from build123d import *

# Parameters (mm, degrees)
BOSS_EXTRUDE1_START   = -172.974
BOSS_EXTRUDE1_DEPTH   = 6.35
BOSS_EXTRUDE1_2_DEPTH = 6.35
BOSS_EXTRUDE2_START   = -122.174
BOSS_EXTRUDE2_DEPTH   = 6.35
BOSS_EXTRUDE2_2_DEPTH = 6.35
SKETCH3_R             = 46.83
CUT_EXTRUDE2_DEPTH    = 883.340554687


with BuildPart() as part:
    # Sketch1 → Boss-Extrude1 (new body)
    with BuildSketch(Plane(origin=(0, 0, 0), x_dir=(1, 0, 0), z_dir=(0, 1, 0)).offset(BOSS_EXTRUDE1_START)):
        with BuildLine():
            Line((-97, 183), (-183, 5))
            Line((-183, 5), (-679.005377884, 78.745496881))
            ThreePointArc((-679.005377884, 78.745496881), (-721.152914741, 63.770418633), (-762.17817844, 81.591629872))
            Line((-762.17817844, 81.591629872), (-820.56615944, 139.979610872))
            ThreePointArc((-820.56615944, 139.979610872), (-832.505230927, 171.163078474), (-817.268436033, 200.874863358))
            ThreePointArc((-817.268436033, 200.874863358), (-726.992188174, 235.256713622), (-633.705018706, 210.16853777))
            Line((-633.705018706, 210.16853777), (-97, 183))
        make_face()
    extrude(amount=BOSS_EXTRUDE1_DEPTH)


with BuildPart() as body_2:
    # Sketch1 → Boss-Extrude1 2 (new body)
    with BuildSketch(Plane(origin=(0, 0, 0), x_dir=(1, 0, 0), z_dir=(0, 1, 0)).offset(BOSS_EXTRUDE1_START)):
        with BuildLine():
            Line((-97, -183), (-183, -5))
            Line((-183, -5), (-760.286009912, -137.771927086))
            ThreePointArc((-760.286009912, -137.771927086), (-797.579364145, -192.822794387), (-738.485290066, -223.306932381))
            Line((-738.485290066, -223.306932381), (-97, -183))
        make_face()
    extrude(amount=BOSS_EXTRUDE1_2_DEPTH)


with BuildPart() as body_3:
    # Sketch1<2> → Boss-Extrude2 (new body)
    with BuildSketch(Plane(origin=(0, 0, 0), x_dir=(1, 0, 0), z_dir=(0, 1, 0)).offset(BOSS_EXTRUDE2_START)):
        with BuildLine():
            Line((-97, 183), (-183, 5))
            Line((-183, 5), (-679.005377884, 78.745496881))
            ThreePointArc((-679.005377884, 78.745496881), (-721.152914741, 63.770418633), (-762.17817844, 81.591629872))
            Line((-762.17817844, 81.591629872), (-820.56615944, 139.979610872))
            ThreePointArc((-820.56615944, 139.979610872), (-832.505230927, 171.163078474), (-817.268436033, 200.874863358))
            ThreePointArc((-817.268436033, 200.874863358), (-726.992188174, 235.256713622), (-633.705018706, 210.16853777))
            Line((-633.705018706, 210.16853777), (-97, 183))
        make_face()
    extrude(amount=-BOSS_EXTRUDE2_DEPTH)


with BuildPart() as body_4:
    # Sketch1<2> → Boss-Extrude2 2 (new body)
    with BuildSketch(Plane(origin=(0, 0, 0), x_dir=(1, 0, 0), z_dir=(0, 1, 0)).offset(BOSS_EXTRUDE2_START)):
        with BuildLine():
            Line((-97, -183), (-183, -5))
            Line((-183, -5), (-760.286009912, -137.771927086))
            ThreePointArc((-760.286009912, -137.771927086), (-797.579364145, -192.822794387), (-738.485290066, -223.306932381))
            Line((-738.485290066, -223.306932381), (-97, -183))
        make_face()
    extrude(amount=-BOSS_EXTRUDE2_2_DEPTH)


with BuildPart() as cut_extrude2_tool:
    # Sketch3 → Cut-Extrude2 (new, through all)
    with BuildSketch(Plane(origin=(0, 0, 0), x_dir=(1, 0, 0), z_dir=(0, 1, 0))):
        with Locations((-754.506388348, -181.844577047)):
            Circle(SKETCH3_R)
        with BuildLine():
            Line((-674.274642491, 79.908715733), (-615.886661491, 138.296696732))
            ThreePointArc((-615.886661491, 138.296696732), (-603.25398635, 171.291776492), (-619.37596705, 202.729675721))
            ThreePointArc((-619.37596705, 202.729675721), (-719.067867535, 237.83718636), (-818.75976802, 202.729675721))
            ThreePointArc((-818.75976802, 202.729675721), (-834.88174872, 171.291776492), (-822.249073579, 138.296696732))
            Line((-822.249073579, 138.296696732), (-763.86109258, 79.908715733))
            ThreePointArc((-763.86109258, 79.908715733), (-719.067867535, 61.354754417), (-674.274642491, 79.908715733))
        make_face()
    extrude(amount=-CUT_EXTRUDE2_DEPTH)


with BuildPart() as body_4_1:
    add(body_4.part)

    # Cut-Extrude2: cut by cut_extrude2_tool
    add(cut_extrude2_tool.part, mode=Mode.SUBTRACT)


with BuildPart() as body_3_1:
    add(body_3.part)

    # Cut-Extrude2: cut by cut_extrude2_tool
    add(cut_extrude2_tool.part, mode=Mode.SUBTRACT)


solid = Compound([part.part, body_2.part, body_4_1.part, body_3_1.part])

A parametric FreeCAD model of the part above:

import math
import FreeCAD as App
import Part
import Sketcher
Q = App.Units.Quantity

doc = App.newDocument("Part")
body = doc.addObject("PartDesign::Body", "Body")

sketch1 = body.newObject("Sketcher::SketchObject", "Sketch")
sketch1.AttachmentSupport = (doc.getObject("XZ_Plane"), [""])
sketch1.MapMode = "FlatFace"
sketch1.AttachmentOffset = App.Placement(App.Vector(0, 0, 6.81 * 25.4), App.Rotation())
sketch1.addGeometry([
    Part.LineSegment(App.Vector(-183, -5, 0), App.Vector(-97, -183, 0)),
    Part.LineSegment(App.Vector(-97, -183, 0), App.Vector(-634, -210, 0)),
    Part.ArcOfCircle(Part.Circle(App.Vector(-719, -79, 0), App.Vector(0, 0, 1), 157), math.radians(-129), math.radians(-57)),
    Part.ArcOfCircle(Part.Circle(App.Vector(-792, -169, 0), App.Vector(0, 0, 1), 41), math.radians(135), math.radians(231)),
    Part.LineSegment(App.Vector(-821, -140, 0), App.Vector(-762, -82, 0)),
    Part.ArcOfCircle(Part.Circle(App.Vector(-719, -125, 0), App.Vector(0, 0, 1), 61), math.radians(49), math.radians(135)),
    Part.LineSegment(App.Vector(-679, -79, 0), App.Vector(-183, -5, 0)),
], False)
sketch1.addConstraint([
    Sketcher.Constraint("Coincident", 0, 2, 1, 1),
    Sketcher.Constraint("Coincident", 1, 2, 2, 2),
    Sketcher.Constraint("Tangent", 2, 1, 3, 2),
    Sketcher.Constraint("Tangent", 3, 1, 4, 1),
    Sketcher.Constraint("Tangent", 4, 2, 5, 2),
    Sketcher.Constraint("Coincident", 5, 1, 6, 1),
    Sketcher.Constraint("Coincident", 6, 2, 0, 1),
    Sketcher.Constraint("Vertical", 2, 3, 5, 3),
    Sketcher.Constraint("Angle", 4, Q("45 deg")),
    Sketcher.Constraint("DistanceY", 2, 3, -1, 1, Q("3.1 in")),
    Sketcher.Constraint("Radius", 2, Q("156.717186 mm")),
    Sketcher.Constraint("Radius", 3, Q("40.967186 mm")),
    Sketcher.Constraint("Radius", 5, Q("60.967186 mm")),
    Sketcher.Constraint("DistanceX", 0, 2, -1, 1, Q("97 mm")),
    Sketcher.Constraint("DistanceY", 0, 2, -1, 1, Q("183 mm")),
    Sketcher.Constraint("DistanceX", 6, 2, -1, 1, Q("183 mm")),
    Sketcher.Constraint("DistanceY", 6, 2, -1, 1, Q("5 mm")),
    Sketcher.Constraint("DistanceX", 4, 2, 5, 1, Q("83.172801 mm")),
    Sketcher.Constraint("Distance", 6, Q("501.457609 mm")),
    Sketcher.Constraint("DistanceY", 5, 3, -1, 1, Q("124.701941 mm")),
    Sketcher.Constraint("DistanceX", 1, 2, -1, 1, Q("633.705019 mm")),
])
pad1 = body.newObject("PartDesign::Pad", "Pad")
pad1.Profile = sketch1
pad1.Length = Q("0.25 in")
pad1.Reversed = True
body2 = doc.addObject("PartDesign::Body", "Body001")

sketch2 = body2.newObject("Sketcher::SketchObject", "Sketch001")
sketch2.AttachmentSupport = (doc.getObject("XZ_Plane001"), [""])
sketch2.MapMode = "FlatFace"
sketch2.AttachmentOffset = App.Placement(App.Vector(0, 0, 6.81 * 25.4), App.Rotation())
sketch2.addGeometry([
    Part.LineSegment(App.Vector(-97, 183, 0), App.Vector(-183, 5, 0)),
    Part.LineSegment(App.Vector(-183, 5, 0), App.Vector(-760, 138, 0)),
    Part.ArcOfCircle(Part.Circle(App.Vector(-755, 182, 0), App.Vector(0, 0, 1), 44), math.radians(69), math.radians(263)),
    Part.LineSegment(App.Vector(-738, 223, 0), App.Vector(-97, 183, 0)),
], False)
sketch2.addConstraint([
    Sketcher.Constraint("Coincident", 0, 2, 1, 1),
    Sketcher.Constraint("Coincident", 1, 2, 2, 2),
    Sketcher.Constraint("Coincident", 2, 1, 3, 1),
    Sketcher.Constraint("Coincident", 3, 2, 0, 1),
    Sketcher.Constraint("Radius", 2, Q("1.75 in")),
    Sketcher.Constraint("DistanceX", 0, 2, -1, 1, Q("183 mm")),
    Sketcher.Constraint("DistanceY", -1, 1, 0, 2, Q("5 mm")),
    Sketcher.Constraint("DistanceX", 3, 2, -1, 1, Q("97 mm")),
    Sketcher.Constraint("DistanceY", -1, 1, 3, 2, Q("183 mm")),
    Sketcher.Constraint("DistanceX", 2, 3, 2, 1, Q("16.021098 mm")),
    Sketcher.Constraint("Distance", 3, Q("642.750361 mm")),
    Sketcher.Constraint("DistanceX", 2, 3, -1, 1, Q("754.506388 mm")),
    Sketcher.Constraint("DistanceX", 1, 2, -1, 1, Q("760.28601 mm")),
])
pad2 = body2.newObject("PartDesign::Pad", "Pad001")
pad2.Profile = sketch2
pad2.Length = Q("0.25 in")
pad2.Reversed = True
body3 = doc.addObject("PartDesign::Body", "Body002")

sketch3 = body3.newObject("Sketcher::SketchObject", "Sketch002")
sketch3.AttachmentSupport = (doc.getObject("XZ_Plane002"), [""])
sketch3.MapMode = "FlatFace"
sketch3.AttachmentOffset = App.Placement(App.Vector(0, 0, 4.81 * 25.4), App.Rotation())
sketch3.addGeometry([
    Part.LineSegment(App.Vector(-183, -5, 0), App.Vector(-97, -183, 0)),
    Part.LineSegment(App.Vector(-97, -183, 0), App.Vector(-634, -210, 0)),
    Part.ArcOfCircle(Part.Circle(App.Vector(-719, -79, 0), App.Vector(0, 0, 1), 157), math.radians(-129), math.radians(-57)),
    Part.ArcOfCircle(Part.Circle(App.Vector(-792, -169, 0), App.Vector(0, 0, 1), 41), math.radians(135), math.radians(231)),
    Part.LineSegment(App.Vector(-821, -140, 0), App.Vector(-762, -82, 0)),
    Part.ArcOfCircle(Part.Circle(App.Vector(-719, -125, 0), App.Vector(0, 0, 1), 61), math.radians(49), math.radians(135)),
    Part.LineSegment(App.Vector(-679, -79, 0), App.Vector(-183, -5, 0)),
], False)
sketch3.addConstraint([
    Sketcher.Constraint("Coincident", 0, 2, 1, 1),
    Sketcher.Constraint("Coincident", 1, 2, 2, 2),
    Sketcher.Constraint("Tangent", 2, 1, 3, 2),
    Sketcher.Constraint("Tangent", 3, 1, 4, 1),
    Sketcher.Constraint("Tangent", 4, 2, 5, 2),
    Sketcher.Constraint("Coincident", 5, 1, 6, 1),
    Sketcher.Constraint("Coincident", 6, 2, 0, 1),
    Sketcher.Constraint("Vertical", 2, 3, 5, 3),
    Sketcher.Constraint("Angle", 4, Q("45 deg")),
    Sketcher.Constraint("DistanceY", 2, 3, -1, 1, Q("3.1 in")),
    Sketcher.Constraint("Radius", 2, Q("156.717186 mm")),
    Sketcher.Constraint("Radius", 3, Q("40.967186 mm")),
    Sketcher.Constraint("Radius", 5, Q("60.967186 mm")),
    Sketcher.Constraint("DistanceX", 0, 2, -1, 1, Q("97 mm")),
    Sketcher.Constraint("DistanceY", 0, 2, -1, 1, Q("183 mm")),
    Sketcher.Constraint("DistanceX", 6, 2, -1, 1, Q("183 mm")),
    Sketcher.Constraint("DistanceY", 6, 2, -1, 1, Q("5 mm")),
    Sketcher.Constraint("DistanceX", 4, 2, 5, 1, Q("83.172801 mm")),
    Sketcher.Constraint("Distance", 6, Q("501.457609 mm")),
    Sketcher.Constraint("DistanceY", 5, 3, -1, 1, Q("124.701941 mm")),
    Sketcher.Constraint("DistanceX", 1, 2, -1, 1, Q("633.705019 mm")),
])
pad3 = body3.newObject("PartDesign::Pad", "Pad002")
pad3.Profile = sketch3
pad3.Length = Q("0.25 in")
body4 = doc.addObject("PartDesign::Body", "Body003")

sketch4 = body4.newObject("Sketcher::SketchObject", "Sketch003")
sketch4.AttachmentSupport = (doc.getObject("XZ_Plane003"), [""])
sketch4.MapMode = "FlatFace"
sketch4.AttachmentOffset = App.Placement(App.Vector(0, 0, 4.81 * 25.4), App.Rotation())
sketch4.addGeometry([
    Part.LineSegment(App.Vector(-97, 183, 0), App.Vector(-183, 5, 0)),
    Part.LineSegment(App.Vector(-183, 5, 0), App.Vector(-760, 138, 0)),
    Part.ArcOfCircle(Part.Circle(App.Vector(-755, 182, 0), App.Vector(0, 0, 1), 44), math.radians(69), math.radians(263)),
    Part.LineSegment(App.Vector(-738, 223, 0), App.Vector(-97, 183, 0)),
], False)
sketch4.addConstraint([
    Sketcher.Constraint("Coincident", 0, 2, 1, 1),
    Sketcher.Constraint("Coincident", 1, 2, 2, 2),
    Sketcher.Constraint("Coincident", 2, 1, 3, 1),
    Sketcher.Constraint("Coincident", 3, 2, 0, 1),
    Sketcher.Constraint("Radius", 2, Q("1.75 in")),
    Sketcher.Constraint("DistanceX", 0, 2, -1, 1, Q("183 mm")),
    Sketcher.Constraint("DistanceY", -1, 1, 0, 2, Q("5 mm")),
    Sketcher.Constraint("DistanceX", 3, 2, -1, 1, Q("97 mm")),
    Sketcher.Constraint("DistanceY", -1, 1, 3, 2, Q("183 mm")),
    Sketcher.Constraint("DistanceX", 2, 3, 2, 1, Q("16.021098 mm")),
    Sketcher.Constraint("Distance", 3, Q("642.750361 mm")),
    Sketcher.Constraint("DistanceX", 2, 3, -1, 1, Q("754.506388 mm")),
    Sketcher.Constraint("DistanceX", 1, 2, -1, 1, Q("760.28601 mm")),
])
pad4 = body4.newObject("PartDesign::Pad", "Pad003")
pad4.Profile = sketch4
pad4.Length = Q("0.25 in")
body5 = doc.addObject("PartDesign::Body", "Body004")
body5.AllowCompound = True

sketch5 = body5.newObject("Sketcher::SketchObject", "Sketch004")
sketch5.AttachmentSupport = (doc.getObject("XZ_Plane004"), [""])
sketch5.MapMode = "FlatFace"
sketch5.addGeometry([
    Part.Circle(App.Vector(-755, 182, 0), App.Vector(0, 0, 1), 47),
    Part.LineSegment(App.Vector(-674, -80, 0), App.Vector(-616, -138, 0)),
    Part.ArcOfCircle(Part.Circle(App.Vector(-647, -169, 0), App.Vector(0, 0, 1), 43), math.radians(-51), math.radians(45)),
    Part.ArcOfCircle(Part.Circle(App.Vector(-719, -79, 0), App.Vector(0, 0, 1), 159), math.radians(-129), math.radians(-51)),
    Part.ArcOfCircle(Part.Circle(App.Vector(-792, -169, 0), App.Vector(0, 0, 1), 43), math.radians(135), math.radians(231)),
    Part.LineSegment(App.Vector(-822, -138, 0), App.Vector(-764, -80, 0)),
    Part.ArcOfCircle(Part.Circle(App.Vector(-719, -125, 0), App.Vector(0, 0, 1), 63), math.radians(45), math.radians(135)),
], False)
sketch5.addConstraint([
    Sketcher.Constraint("Tangent", 1, 2, 2, 2),
    Sketcher.Constraint("Tangent", 2, 1, 3, 2),
    Sketcher.Constraint("Tangent", 3, 1, 4, 2),
    Sketcher.Constraint("Tangent", 4, 1, 5, 1),
    Sketcher.Constraint("Tangent", 5, 2, 6, 2),
    Sketcher.Constraint("Tangent", 6, 1, 1, 1),
    Sketcher.Constraint("Equal", 2, 4),
    Sketcher.Constraint("Perpendicular", 1, 5),
    Sketcher.Constraint("Horizontal", 2, 3, 4, 3),
    Sketcher.Constraint("Horizontal", 1, 2, 4, 1),
    Sketcher.Constraint("DistanceY", 3, 3, -1, 1, Q("3.1 in")),
    Sketcher.Constraint("Diameter", 0, Q("93.66 mm")),
    Sketcher.Constraint("Radius", 2, Q("43.347186 mm")),
    Sketcher.Constraint("Radius", 3, Q("159.097186 mm")),
    Sketcher.Constraint("Radius", 6, Q("63.347186 mm")),
    Sketcher.Constraint("DistanceX", 6, 3, 2, 1, Q("99.6919 mm")),
    Sketcher.Constraint("DistanceX", 0, 3, -1, 1, Q("754.506388 mm")),
    Sketcher.Constraint("DistanceX", 2, 3, -1, 1, Q("646.537751 mm")),
    Sketcher.Constraint("DistanceY", -1, 1, 0, 3, Q("181.844577 mm")),
])
pad5 = body5.newObject("PartDesign::Pad", "Pad004")
pad5.Profile = sketch5
pad5.Length = 883.340555
doc.recompute()

body6 = doc.addObject("PartDesign::Body", "Body005")
body6.BaseFeature = body5
boolean = body4.newObject("PartDesign::Boolean", "Boolean")
boolean.Type = "Cut"
boolean.addObjects([body6])
doc.recompute()

boolean2 = body3.newObject("PartDesign::Boolean", "Boolean001")
boolean2.Type = "Cut"
boolean2.addObjects([body5])

doc.recompute()
